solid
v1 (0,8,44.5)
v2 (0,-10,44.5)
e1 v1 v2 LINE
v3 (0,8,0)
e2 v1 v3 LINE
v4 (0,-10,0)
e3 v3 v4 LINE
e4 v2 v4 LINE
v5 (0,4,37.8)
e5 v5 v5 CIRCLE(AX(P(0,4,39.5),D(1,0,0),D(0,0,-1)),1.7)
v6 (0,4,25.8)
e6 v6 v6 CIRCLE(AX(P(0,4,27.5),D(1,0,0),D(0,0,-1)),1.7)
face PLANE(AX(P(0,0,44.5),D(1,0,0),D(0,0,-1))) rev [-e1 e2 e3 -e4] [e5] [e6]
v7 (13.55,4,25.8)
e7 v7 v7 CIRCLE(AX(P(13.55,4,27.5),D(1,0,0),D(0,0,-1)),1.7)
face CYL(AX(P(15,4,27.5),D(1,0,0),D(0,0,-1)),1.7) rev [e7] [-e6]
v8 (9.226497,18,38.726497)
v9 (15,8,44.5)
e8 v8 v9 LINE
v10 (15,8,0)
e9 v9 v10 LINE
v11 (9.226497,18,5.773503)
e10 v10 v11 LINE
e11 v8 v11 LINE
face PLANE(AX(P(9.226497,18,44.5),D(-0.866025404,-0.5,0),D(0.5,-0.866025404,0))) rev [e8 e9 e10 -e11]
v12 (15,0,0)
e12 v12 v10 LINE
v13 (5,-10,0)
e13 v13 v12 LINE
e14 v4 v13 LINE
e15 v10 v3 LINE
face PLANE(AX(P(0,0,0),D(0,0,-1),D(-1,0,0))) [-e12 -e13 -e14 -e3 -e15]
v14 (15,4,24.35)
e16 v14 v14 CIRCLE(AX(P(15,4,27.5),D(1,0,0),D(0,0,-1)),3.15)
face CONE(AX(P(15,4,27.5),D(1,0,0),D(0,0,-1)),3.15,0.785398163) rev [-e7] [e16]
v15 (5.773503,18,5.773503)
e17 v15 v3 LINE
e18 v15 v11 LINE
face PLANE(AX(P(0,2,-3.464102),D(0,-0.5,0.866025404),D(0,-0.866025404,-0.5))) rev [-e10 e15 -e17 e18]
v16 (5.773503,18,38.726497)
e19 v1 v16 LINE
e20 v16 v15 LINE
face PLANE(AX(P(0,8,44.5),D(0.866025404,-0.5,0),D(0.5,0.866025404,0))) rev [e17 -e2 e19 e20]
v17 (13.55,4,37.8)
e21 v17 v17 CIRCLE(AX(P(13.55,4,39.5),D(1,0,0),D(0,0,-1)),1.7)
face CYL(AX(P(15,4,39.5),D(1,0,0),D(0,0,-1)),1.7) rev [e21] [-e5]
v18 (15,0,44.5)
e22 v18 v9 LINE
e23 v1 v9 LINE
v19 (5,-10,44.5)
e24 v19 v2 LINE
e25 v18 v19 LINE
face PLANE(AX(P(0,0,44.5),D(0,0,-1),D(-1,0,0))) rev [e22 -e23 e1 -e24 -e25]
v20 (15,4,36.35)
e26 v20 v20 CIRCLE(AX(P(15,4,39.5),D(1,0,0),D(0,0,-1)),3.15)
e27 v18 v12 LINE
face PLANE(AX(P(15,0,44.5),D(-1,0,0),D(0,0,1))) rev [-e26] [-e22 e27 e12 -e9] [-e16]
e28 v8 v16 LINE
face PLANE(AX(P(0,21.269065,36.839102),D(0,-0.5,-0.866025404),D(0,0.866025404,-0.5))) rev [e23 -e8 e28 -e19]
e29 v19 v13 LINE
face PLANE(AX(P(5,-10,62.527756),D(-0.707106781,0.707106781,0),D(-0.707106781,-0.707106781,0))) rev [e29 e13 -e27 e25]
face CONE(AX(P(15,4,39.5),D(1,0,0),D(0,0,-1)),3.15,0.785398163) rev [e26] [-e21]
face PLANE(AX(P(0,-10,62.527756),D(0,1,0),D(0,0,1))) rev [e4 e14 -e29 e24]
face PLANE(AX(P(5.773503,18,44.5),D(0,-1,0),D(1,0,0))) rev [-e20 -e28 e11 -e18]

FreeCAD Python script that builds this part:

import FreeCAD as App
import Part
import Sketcher
from FreeCAD import Vector
Q = App.Units.Quantity

doc = App.newDocument("Part")
params = doc.addObject("Spreadsheet::Sheet", "Params")
for row, (alias, value) in enumerate([
    ("sketch1_width", "15 mm"),
    ("sketch1_height", "8 mm"),
    ("pad1_length", "44.5 mm"),
    ("sketch2_width", "15 mm"),
    ("sketch3_width", "15 mm"),
    ("sketch4_width", "5 mm"),
    ("sketch4_width2", "15 mm"),
    ("sketch4_height", "10 mm"),
    ("pad2_length", "44.5 mm"),
    ("sketch5_diameter", "3.4 mm"),
    ("hole_diameter", "3.4 mm"),
    ("hole_csink_diameter", "6.3 mm"),
    ("linearpattern_pitch", "12 mm"),
], start=1):
    params.set(f"A{row}", alias)
    params.set(f"B{row}", "=" + value)
    params.setAlias(f"B{row}", alias)

body = doc.addObject("PartDesign::Body", "Body")

# Sketch on XY plane
sketch1 = doc.addObject("Sketcher::SketchObject", "Sketch")
body.addObject(sketch1)
sketch1.AttachmentSupport = (doc.XY_Plane, [""])
sketch1.MapMode = "FlatFace"
sketch1.addGeometry([
    Part.LineSegment(Vector(5.773503, 18, 0), Vector(0, 8, 0)),  # 0
    Part.LineSegment(Vector(0, 8, 0), Vector(0, 0, 0)),  # 1
    Part.LineSegment(Vector(0, 0, 0), Vector(15, 0, 0)),  # 2
    Part.LineSegment(Vector(15, 0, 0), Vector(15, 8, 0)),  # 3
    Part.LineSegment(Vector(15, 8, 0), Vector(9.226497, 18, 0)),  # 4
    Part.LineSegment(Vector(9.226497, 18, 0), Vector(5.773503, 18, 0)),  # 5
], False)
sketch1.addConstraint([
    Sketcher.Constraint("Coincident", 0, 2, 1, 1),
    Sketcher.Constraint("Coincident", 1, 2, 2, 1),
    Sketcher.Constraint("Coincident", 2, 2, 3, 1),
    Sketcher.Constraint("Coincident", 3, 2, 4, 1),
    Sketcher.Constraint("Coincident", 4, 2, 5, 1),
    Sketcher.Constraint("Coincident", 5, 2, 0, 1),
    Sketcher.Constraint("Vertical", 1),
    Sketcher.Constraint("Horizontal", 2),
    Sketcher.Constraint("Vertical", 3),
    Sketcher.Constraint("Horizontal", 5),
    Sketcher.Constraint("Coincident", 1, 2, -1, 1),
    Sketcher.Constraint("Horizontal", 0, 2, 3, 2),
    Sketcher.Constraint("Equal", 0, 4),
    Sketcher.Constraint("DistanceX", 2, 1, 2, 2, Q("15 mm")),
    Sketcher.Constraint("DistanceY", 1, 2, 1, 1, Q("8 mm")),
    Sketcher.Constraint("Angle", 0, Q("-120 deg")),
    Sketcher.Constraint("DistanceY", -1, 1, 4, 2, Q("18 mm")),
])
sketch1.setExpression("Constraints[13]", "Params.sketch1_width")
sketch1.setExpression("Constraints[14]", "Params.sketch1_height")
pad1 = doc.addObject("PartDesign::Pad", "Pad")
body.addObject(pad1)
pad1.Profile = sketch1
pad1.setExpression("Length", "Params.pad1_length")

# Sketch on an angled plane
sketch2 = doc.addObject("Sketcher::SketchObject", "Sketch001")
body.addObject(sketch2)
sketch2.Placement = App.Placement(Vector(0, 21.269065, 36.839102), App.Rotation(Vector(-1, 0, 0), Vector(0, -0.866025404, 0.5), Vector(0, 0.5, 0.866025404), "ZXY"))
sketch2.addGeometry([
    Part.LineSegment(Vector(-15, 15.321797, 0), Vector(-15, 3.774791, 0)),
    Part.LineSegment(Vector(-15, 3.774791, 0), Vector(0, 3.774791, 0)),
    Part.LineSegment(Vector(0, 3.774791, 0), Vector(0, 15.321797, 0)),
    Part.LineSegment(Vector(0, 15.321797, 0), Vector(-15, 15.321797, 0)),
], False)
sketch2.addConstraint([
    Sketcher.Constraint("Coincident", 0, 2, 1, 1),
    Sketcher.Constraint("Coincident", 1, 2, 2, 1),
    Sketcher.Constraint("Coincident", 2, 2, 3, 1),
    Sketcher.Constraint("Coincident", 3, 2, 0, 1),
    Sketcher.Constraint("Vertical", 0),
    Sketcher.Constraint("Horizontal", 1),
    Sketcher.Constraint("Vertical", 2),
    Sketcher.Constraint("Horizontal", 3),
    Sketcher.Constraint("PointOnObject", 1, 2, -2),
    Sketcher.Constraint("DistanceX", 1, 1, 1, 2, Q("15 mm")),
    Sketcher.Constraint("DistanceY", 0, 2, 0, 1, Q("11.547005 mm")),
    Sketcher.Constraint("DistanceY", -1, 1, 0, 2, Q("3.774791 mm")),
])
sketch2.setExpression("Constraints[9]", "Params.sketch2_width")
pocket1 = doc.addObject("PartDesign::Pocket", "Pocket")
body.addObject(pocket1)
pocket1.Profile = sketch2
pocket1.Type = "ThroughAll"
pocket1.Reversed = True

# Sketch on an angled plane
sketch3 = doc.addObject("Sketcher::SketchObject", "Sketch002")
body.addObject(sketch3)
sketch3.Placement = App.Placement(Vector(0, 2, -3.464102), App.Rotation(Vector(-1, 0, 0), Vector(0, 0.866025404, 0.5), Vector(0, 0.5, -0.866025404), "ZXY"))
sketch3.addGeometry([
    Part.LineSegment(Vector(-15, 18.475209, 0), Vector(-15, 6.928203, 0)),
    Part.LineSegment(Vector(-15, 6.928203, 0), Vector(0, 6.928203, 0)),
    Part.LineSegment(Vector(0, 6.928203, 0), Vector(0, 18.475209, 0)),
    Part.LineSegment(Vector(0, 18.475209, 0), Vector(-15, 18.475209, 0)),
], False)
sketch3.addConstraint([
    Sketcher.Constraint("Coincident", 0, 2, 1, 1),
    Sketcher.Constraint("Coincident", 1, 2, 2, 1),
    Sketcher.Constraint("Coincident", 2, 2, 3, 1),
    Sketcher.Constraint("Coincident", 3, 2, 0, 1),
    Sketcher.Constraint("Vertical", 0),
    Sketcher.Constraint("Horizontal", 1),
    Sketcher.Constraint("Vertical", 2),
    Sketcher.Constraint("Horizontal", 3),
    Sketcher.Constraint("PointOnObject", 1, 2, -2),
    Sketcher.Constraint("DistanceX", 1, 1, 1, 2, Q("15 mm")),
    Sketcher.Constraint("DistanceY", 0, 2, 0, 1, Q("11.547005 mm")),
    Sketcher.Constraint("DistanceY", -1, 1, 2, 2, Q("18.475209 mm")),
])
sketch3.setExpression("Constraints[9]", "Params.sketch3_width")
pocket2 = doc.addObject("PartDesign::Pocket", "Pocket001")
body.addObject(pocket2)
pocket2.Profile = sketch3
pocket2.Type = "ThroughAll"
pocket2.Reversed = True

# Sketch on XY plane
sketch4 = doc.addObject("Sketcher::SketchObject", "Sketch003")
body.addObject(sketch4)
sketch4.AttachmentSupport = (doc.XY_Plane, [""])
sketch4.MapMode = "FlatFace"
sketch4.addGeometry([
    Part.LineSegment(Vector(0, -10, 0), Vector(5, -10, 0)),
    Part.LineSegment(Vector(5, -10, 0), Vector(15, 0, 0)),
    Part.LineSegment(Vector(15, 0, 0), Vector(0, 0, 0)),
    Part.LineSegment(Vector(0, 0, 0), Vector(0, -10, 0)),
], False)
sketch4.addConstraint([
    Sketcher.Constraint("Coincident", 0, 2, 1, 1),
    Sketcher.Constraint("Coincident", 1, 2, 2, 1),
    Sketcher.Constraint("Coincident", 2, 2, 3, 1),
    Sketcher.Constraint("Coincident", 3, 2, 0, 1),
    Sketcher.Constraint("Horizontal", 0),
    Sketcher.Constraint("Horizontal", 2),
    Sketcher.Constraint("Vertical", 3),
    Sketcher.Constraint("Coincident", 2, 2, -1, 1),
    Sketcher.Constraint("DistanceX", 0, 1, 0, 2, Q("5 mm")),
    Sketcher.Constraint("DistanceX", 2, 2, 2, 1, Q("15 mm")),
    Sketcher.Constraint("DistanceY", 3, 2, 3, 1, Q("10 mm")),
])
sketch4.setExpression("Constraints[8]", "Params.sketch4_width")
sketch4.setExpression("Constraints[9]", "Params.sketch4_width2")
sketch4.setExpression("Constraints[10]", "Params.sketch4_height")
pad2 = doc.addObject("PartDesign::Pad", "Pad001")
body.addObject(pad2)
pad2.Profile = sketch4
pad2.setExpression("Length", "Params.pad2_length")

# Sketch on YZ plane
sketch5 = doc.addObject("Sketcher::SketchObject", "Sketch004")
body.addObject(sketch5)
sketch5.AttachmentSupport = (doc.YZ_Plane, [""])
sketch5.MapMode = "FlatFace"
sketch5.AttachmentOffset = App.Placement(Vector(0, 0, 15), App.Rotation())
sketch5.addGeometry(Part.Circle(Vector(4, 39.5, 0), Vector(0, 0, 1), 1.7), False)
sketch5.addConstraint([
    Sketcher.Constraint("Diameter", 0, Q("3.4 mm")),
    Sketcher.Constraint("DistanceX", -1, 1, 0, 3, Q("4 mm")),
    Sketcher.Constraint("DistanceY", -1, 1, 0, 3, Q("39.5 mm")),
])
sketch5.setExpression("Constraints[0]", "Params.sketch5_diameter")
doc.recompute()
hole = doc.addObject("PartDesign::Hole", "Hole")
body.addObject(hole)
hole.Profile = sketch5
hole.ThreadType = "None"
hole.setExpression("Diameter", "Params.hole_diameter")
hole.DepthType = "ThroughAll"
hole.HoleCutType = "Countersink"
hole.setExpression("HoleCutDiameter", "Params.hole_csink_diameter")
hole.HoleCutCountersinkAngle = 90
doc.recompute()

linearpattern = doc.addObject("PartDesign::LinearPattern", "LinearPattern")
body.addObject(linearpattern)
linearpattern.Originals = [hole]
linearpattern.Direction = (doc.Z_Axis, [""])
linearpattern.Mode = "offset"
linearpattern.setExpression("Offset", "Params.linearpattern_pitch")
linearpattern.Occurrences = 2
linearpattern.Reversed = True
body.Tip = linearpattern

doc.recompute()
